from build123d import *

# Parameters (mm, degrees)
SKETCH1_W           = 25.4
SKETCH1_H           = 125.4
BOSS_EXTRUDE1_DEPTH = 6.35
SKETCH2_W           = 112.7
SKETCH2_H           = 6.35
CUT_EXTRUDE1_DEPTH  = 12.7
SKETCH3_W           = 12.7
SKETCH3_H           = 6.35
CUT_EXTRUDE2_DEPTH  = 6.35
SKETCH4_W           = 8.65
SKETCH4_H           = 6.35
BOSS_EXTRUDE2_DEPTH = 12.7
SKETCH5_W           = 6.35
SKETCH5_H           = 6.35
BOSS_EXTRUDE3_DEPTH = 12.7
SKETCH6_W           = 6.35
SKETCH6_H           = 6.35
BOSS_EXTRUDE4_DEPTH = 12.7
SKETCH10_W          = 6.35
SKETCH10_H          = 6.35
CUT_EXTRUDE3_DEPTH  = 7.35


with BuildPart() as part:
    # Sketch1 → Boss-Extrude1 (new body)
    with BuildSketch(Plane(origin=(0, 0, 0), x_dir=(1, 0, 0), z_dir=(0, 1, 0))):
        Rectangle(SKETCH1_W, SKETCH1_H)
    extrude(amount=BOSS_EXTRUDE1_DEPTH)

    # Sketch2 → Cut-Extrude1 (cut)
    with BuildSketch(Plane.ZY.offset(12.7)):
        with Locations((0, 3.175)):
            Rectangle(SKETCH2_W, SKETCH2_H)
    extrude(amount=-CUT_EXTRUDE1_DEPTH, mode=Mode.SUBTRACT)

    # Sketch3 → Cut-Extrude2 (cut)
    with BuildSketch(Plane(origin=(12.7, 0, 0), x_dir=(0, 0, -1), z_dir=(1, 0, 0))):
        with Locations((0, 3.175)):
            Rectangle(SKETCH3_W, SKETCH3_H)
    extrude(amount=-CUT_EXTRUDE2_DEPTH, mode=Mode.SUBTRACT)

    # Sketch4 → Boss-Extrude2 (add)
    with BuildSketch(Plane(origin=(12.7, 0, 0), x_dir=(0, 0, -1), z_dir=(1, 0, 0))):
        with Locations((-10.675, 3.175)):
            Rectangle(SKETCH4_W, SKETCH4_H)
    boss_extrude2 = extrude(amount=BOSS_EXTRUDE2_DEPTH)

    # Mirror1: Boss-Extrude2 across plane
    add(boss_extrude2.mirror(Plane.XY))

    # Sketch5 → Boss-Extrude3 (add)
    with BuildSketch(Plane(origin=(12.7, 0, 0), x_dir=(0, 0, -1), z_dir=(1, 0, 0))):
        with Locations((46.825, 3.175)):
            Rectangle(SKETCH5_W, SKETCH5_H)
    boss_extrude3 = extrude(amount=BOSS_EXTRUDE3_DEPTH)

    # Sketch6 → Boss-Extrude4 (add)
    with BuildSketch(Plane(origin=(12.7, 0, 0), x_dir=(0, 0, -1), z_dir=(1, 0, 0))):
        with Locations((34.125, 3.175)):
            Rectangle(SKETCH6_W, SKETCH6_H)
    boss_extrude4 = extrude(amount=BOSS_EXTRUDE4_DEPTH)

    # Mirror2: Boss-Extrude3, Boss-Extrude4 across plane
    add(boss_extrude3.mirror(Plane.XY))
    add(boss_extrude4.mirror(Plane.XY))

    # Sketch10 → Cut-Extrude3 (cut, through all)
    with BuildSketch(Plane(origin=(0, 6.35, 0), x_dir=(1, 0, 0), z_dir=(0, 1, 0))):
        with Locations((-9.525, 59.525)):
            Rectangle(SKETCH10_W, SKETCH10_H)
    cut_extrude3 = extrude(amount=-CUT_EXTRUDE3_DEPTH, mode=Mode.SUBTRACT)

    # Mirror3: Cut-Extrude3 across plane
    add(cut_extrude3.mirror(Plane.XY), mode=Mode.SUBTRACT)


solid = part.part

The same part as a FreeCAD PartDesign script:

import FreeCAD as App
import Part
import Sketcher
Q = App.Units.Quantity

doc = App.newDocument("Part")
body = doc.addObject("PartDesign::Body", "Body")

sketch1 = body.newObject("Sketcher::SketchObject", "Sketch")
sketch1.AttachmentSupport = (doc.getObject("XZ_Plane"), [""])
sketch1.MapMode = "FlatFace"
sketch1.addGeometry([
    Part.LineSegment(App.Vector(-13, -63, 0), App.Vector(-13, 63, 0)),
    Part.LineSegment(App.Vector(-13, 63, 0), App.Vector(13, 63, 0)),
    Part.LineSegment(App.Vector(13, 63, 0), App.Vector(13, -63, 0)),
    Part.LineSegment(App.Vector(13, -63, 0), App.Vector(-13, -63, 0)),
], False)
sketch1.addConstraint([
    Sketcher.Constraint("Coincident", 0, 2, 1, 1),
    Sketcher.Constraint("Coincident", 1, 2, 2, 1),
    Sketcher.Constraint("Coincident", 2, 2, 3, 1),
    Sketcher.Constraint("Coincident", 3, 2, 0, 1),
    Sketcher.Constraint("Vertical", 0),
    Sketcher.Constraint("Horizontal", 1),
    Sketcher.Constraint("Vertical", 2),
    Sketcher.Constraint("Horizontal", 3),
    Sketcher.Constraint("Symmetric", 0, 2, 2, 2, -1, 1),
    Sketcher.Constraint("DistanceX", 1, 1, 1, 2, Q("1 in")),
    Sketcher.Constraint("DistanceY", 0, 1, 0, 2, Q("125.4 mm")),
])
pad1 = body.newObject("PartDesign::Pad", "Pad")
pad1.Profile = sketch1
pad1.Length = Q("0.25 in")
pad1.Reversed = True

sketch2 = body.newObject("Sketcher::SketchObject", "Sketch001")
sketch2.AttachmentSupport = (doc.getObject("YZ_Plane"), [""])
sketch2.MapMode = "FlatFace"
sketch2.AttachmentOffset = App.Placement(App.Vector(0, 0, -0.5 * 25.4), App.Rotation())
sketch2.addGeometry([
    Part.LineSegment(App.Vector(6, -56, 0), App.Vector(0, -56, 0)),
    Part.LineSegment(App.Vector(0, -56, 0), App.Vector(0, 56, 0)),
    Part.LineSegment(App.Vector(0, 56, 0), App.Vector(6, 56, 0)),
    Part.LineSegment(App.Vector(6, 56, 0), App.Vector(6, -56, 0)),
], False)
sketch2.addConstraint([
    Sketcher.Constraint("Coincident", 0, 2, 1, 1),
    Sketcher.Constraint("Coincident", 1, 2, 2, 1),
    Sketcher.Constraint("Coincident", 2, 2, 3, 1),
    Sketcher.Constraint("Coincident", 3, 2, 0, 1),
    Sketcher.Constraint("Horizontal", 0),
    Sketcher.Constraint("Vertical", 1),
    Sketcher.Constraint("Horizontal", 2),
    Sketcher.Constraint("Vertical", 3),
    Sketcher.Constraint("Symmetric", 0, 2, 1, 2, -1, 1),
    Sketcher.Constraint("DistanceX", 0, 2, 0, 1, Q("0.25 in")),
    Sketcher.Constraint("DistanceY", 1, 1, 1, 2, Q("112.7 mm")),
])
pocket1 = body.newObject("PartDesign::Pocket", "Pocket")
pocket1.Profile = sketch2
pocket1.Length = Q("0.5 in")
pocket1.Reversed = True

sketch3 = body.newObject("Sketcher::SketchObject", "Sketch002")
sketch3.AttachmentSupport = (doc.getObject("YZ_Plane"), [""])
sketch3.MapMode = "FlatFace"
sketch3.AttachmentOffset = App.Placement(App.Vector(0, 0, 0.5 * 25.4), App.Rotation())
sketch3.addGeometry([
    Part.LineSegment(App.Vector(6, 6, 0), App.Vector(0, 6, 0)),
    Part.LineSegment(App.Vector(0, 6, 0), App.Vector(0, -6, 0)),
    Part.LineSegment(App.Vector(0, -6, 0), App.Vector(6, -6, 0)),
    Part.LineSegment(App.Vector(6, -6, 0), App.Vector(6, 6, 0)),
], False)
sketch3.addConstraint([
    Sketcher.Constraint("Coincident", 0, 2, 1, 1),
    Sketcher.Constraint("Coincident", 1, 2, 2, 1),
    Sketcher.Constraint("Coincident", 2, 2, 3, 1),
    Sketcher.Constraint("Coincident", 3, 2, 0, 1),
    Sketcher.Constraint("Horizontal", 0),
    Sketcher.Constraint("Vertical", 1),
    Sketcher.Constraint("Horizontal", 2),
    Sketcher.Constraint("Vertical", 3),
    Sketcher.Constraint("Symmetric", 0, 2, 1, 2, -1, 1),
    Sketcher.Constraint("DistanceY", 1, 2, 1, 1, Q("0.5 in")),
    Sketcher.Constraint("DistanceX", 0, 2, 0, 1, Q("0.25 in")),
])
pocket2 = body.newObject("PartDesign::Pocket", "Pocket001")
pocket2.Profile = sketch3
pocket2.Length = Q("0.25 in")

sketch4 = body.newObject("Sketcher::SketchObject", "Sketch003")
sketch4.AttachmentSupport = (doc.getObject("YZ_Plane"), [""])
sketch4.MapMode = "FlatFace"
sketch4.AttachmentOffset = App.Placement(App.Vector(0, 0, 0.5 * 25.4), App.Rotation())
sketch4.addGeometry([
    Part.LineSegment(App.Vector(6, 15, 0), App.Vector(0, 15, 0)),
    Part.LineSegment(App.Vector(0, 15, 0), App.Vector(0, 6, 0)),
    Part.LineSegment(App.Vector(0, 6, 0), App.Vector(6, 6, 0)),
    Part.LineSegment(App.Vector(6, 6, 0), App.Vector(6, 15, 0)),
], False)
sketch4.addConstraint([
    Sketcher.Constraint("Coincident", 0, 2, 1, 1),
    Sketcher.Constraint("Coincident", 1, 2, 2, 1),
    Sketcher.Constraint("Coincident", 2, 2, 3, 1),
    Sketcher.Constraint("Coincident", 3, 2, 0, 1),
    Sketcher.Constraint("Horizontal", 0),
    Sketcher.Constraint("Vertical", 1),
    Sketcher.Constraint("Horizontal", 2),
    Sketcher.Constraint("Vertical", 3),
    Sketcher.Constraint("PointOnObject", 0, 2, -2),
    Sketcher.Constraint("DistanceX", 0, 2, 0, 1, Q("0.25 in")),
    Sketcher.Constraint("DistanceY", -1, 1, 1, 2, Q("0.25 in")),
    Sketcher.Constraint("DistanceY", 1, 2, 1, 1, Q("8.65 mm")),
])
pad2 = body.newObject("PartDesign::Pad", "Pad001")
pad2.Profile = sketch4
pad2.Length = Q("0.5 in")
doc.recompute()

mirrored = body.newObject("PartDesign::Mirrored", "Mirrored")
mirrored.Originals = [pad2]
mirrored.MirrorPlane = (doc.getObject("XY_Plane"), [""])
body.Tip = mirrored

sketch5 = body.newObject("Sketcher::SketchObject", "Sketch004")
sketch5.AttachmentSupport = (doc.getObject("YZ_Plane"), [""])
sketch5.MapMode = "FlatFace"
sketch5.AttachmentOffset = App.Placement(App.Vector(0, 0, 0.5 * 25.4), App.Rotation())
sketch5.addGeometry([
    Part.LineSegment(App.Vector(6, -44, 0), App.Vector(0, -44, 0)),
    Part.LineSegment(App.Vector(0, -44, 0), App.Vector(0, -50, 0)),
    Part.LineSegment(App.Vector(0, -50, 0), App.Vector(6, -50, 0)),
    Part.LineSegment(App.Vector(6, -50, 0), App.Vector(6, -44, 0)),
], False)
sketch5.addConstraint([
    Sketcher.Constraint("Coincident", 0, 2, 1, 1),
    Sketcher.Constraint("Coincident", 1, 2, 2, 1),
    Sketcher.Constraint("Coincident", 2, 2, 3, 1),
    Sketcher.Constraint("Coincident", 3, 2, 0, 1),
    Sketcher.Constraint("Horizontal", 0),
    Sketcher.Constraint("Vertical", 1),
    Sketcher.Constraint("Horizontal", 2),
    Sketcher.Constraint("Vertical", 3),
    Sketcher.Constraint("PointOnObject", 0, 2, -2),
    Sketcher.Constraint("Equal", 2, 1),
    Sketcher.Constraint("DistanceX", 0, 2, 0, 1, Q("0.25 in")),
    Sketcher.Constraint("DistanceY", 0, 2, -1, 1, Q("43.65 mm")),
])
pad3 = body.newObject("PartDesign::Pad", "Pad002")
pad3.Profile = sketch5
pad3.Length = Q("0.5 in")

sketch6 = body.newObject("Sketcher::SketchObject", "Sketch005")
sketch6.AttachmentSupport = (doc.getObject("YZ_Plane"), [""])
sketch6.MapMode = "FlatFace"
sketch6.AttachmentOffset = App.Placement(App.Vector(0, 0, 0.5 * 25.4), App.Rotation())
sketch6.addGeometry([
    Part.LineSegment(App.Vector(6, -31, 0), App.Vector(0, -31, 0)),
    Part.LineSegment(App.Vector(0, -31, 0), App.Vector(0, -37, 0)),
    Part.LineSegment(App.Vector(0, -37, 0), App.Vector(6, -37, 0)),
    Part.LineSegment(App.Vector(6, -37, 0), App.Vector(6, -31, 0)),
], False)
sketch6.addConstraint([
    Sketcher.Constraint("Coincident", 0, 2, 1, 1),
    Sketcher.Constraint("Coincident", 1, 2, 2, 1),
    Sketcher.Constraint("Coincident", 2, 2, 3, 1),
    Sketcher.Constraint("Coincident", 3, 2, 0, 1),
    Sketcher.Constraint("Horizontal", 0),
    Sketcher.Constraint("Vertical", 1),
    Sketcher.Constraint("Horizontal", 2),
    Sketcher.Constraint("Vertical", 3),
    Sketcher.Constraint("PointOnObject", 0, 2, -2),
    Sketcher.Constraint("Equal", 2, 1),
    Sketcher.Constraint("DistanceX", 0, 2, 0, 1, Q("0.25 in")),
    Sketcher.Constraint("DistanceY", 0, 2, -1, 1, Q("30.95 mm")),
])
pad4 = body.newObject("PartDesign::Pad", "Pad003")
pad4.Profile = sketch6
pad4.Length = Q("0.5 in")
doc.recompute()

mirrored2 = body.newObject("PartDesign::Mirrored", "Mirrored001")
mirrored2.Originals = [pad3, pad4]
mirrored2.MirrorPlane = (doc.getObject("XY_Plane"), [""])
body.Tip = mirrored2

sketch7 = body.newObject("Sketcher::SketchObject", "Sketch006")
sketch7.AttachmentSupport = (doc.getObject("XZ_Plane"), [""])
sketch7.MapMode = "FlatFace"
sketch7.AttachmentOffset = App.Placement(App.Vector(0, 0, -0.25 * 25.4), App.Rotation())
sketch7.addGeometry([
    Part.LineSegment(App.Vector(-13, -63, 0), App.Vector(-13, -56, 0)),
    Part.LineSegment(App.Vector(-13, -56, 0), App.Vector(-6, -56, 0)),
    Part.LineSegment(App.Vector(-6, -56, 0), App.Vector(-6, -63, 0)),
    Part.LineSegment(App.Vector(-6, -63, 0), App.Vector(-13, -63, 0)),
], False)
sketch7.addConstraint([
    Sketcher.Constraint("Coincident", 0, 2, 1, 1),
    Sketcher.Constraint("Coincident", 1, 2, 2, 1),
    Sketcher.Constraint("Coincident", 2, 2, 3, 1),
    Sketcher.Constraint("Coincident", 3, 2, 0, 1),
    Sketcher.Constraint("Vertical", 0),
    Sketcher.Constraint("Horizontal", 1),
    Sketcher.Constraint("Vertical", 2),
    Sketcher.Constraint("Horizontal", 3),
    Sketcher.Constraint("Equal", 3, 0),
    Sketcher.Constraint("DistanceX", 1, 1, 1, 2, Q("0.25 in")),
    Sketcher.Constraint("DistanceX", 0, 2, -1, 1, Q("0.5 in")),
    Sketcher.Constraint("DistanceY", 0, 2, -1, 1, Q("56.35 mm")),
])
pocket3 = body.newObject("PartDesign::Pocket", "Pocket002")
pocket3.Profile = sketch7
pocket3.Type = "ThroughAll"
pocket3.Reversed = True
doc.recompute()

mirrored3 = body.newObject("PartDesign::Mirrored", "Mirrored002")
mirrored3.Originals = [pocket3]
mirrored3.MirrorPlane = (doc.getObject("XY_Plane"), [""])
body.Tip = mirrored3

doc.recompute()
